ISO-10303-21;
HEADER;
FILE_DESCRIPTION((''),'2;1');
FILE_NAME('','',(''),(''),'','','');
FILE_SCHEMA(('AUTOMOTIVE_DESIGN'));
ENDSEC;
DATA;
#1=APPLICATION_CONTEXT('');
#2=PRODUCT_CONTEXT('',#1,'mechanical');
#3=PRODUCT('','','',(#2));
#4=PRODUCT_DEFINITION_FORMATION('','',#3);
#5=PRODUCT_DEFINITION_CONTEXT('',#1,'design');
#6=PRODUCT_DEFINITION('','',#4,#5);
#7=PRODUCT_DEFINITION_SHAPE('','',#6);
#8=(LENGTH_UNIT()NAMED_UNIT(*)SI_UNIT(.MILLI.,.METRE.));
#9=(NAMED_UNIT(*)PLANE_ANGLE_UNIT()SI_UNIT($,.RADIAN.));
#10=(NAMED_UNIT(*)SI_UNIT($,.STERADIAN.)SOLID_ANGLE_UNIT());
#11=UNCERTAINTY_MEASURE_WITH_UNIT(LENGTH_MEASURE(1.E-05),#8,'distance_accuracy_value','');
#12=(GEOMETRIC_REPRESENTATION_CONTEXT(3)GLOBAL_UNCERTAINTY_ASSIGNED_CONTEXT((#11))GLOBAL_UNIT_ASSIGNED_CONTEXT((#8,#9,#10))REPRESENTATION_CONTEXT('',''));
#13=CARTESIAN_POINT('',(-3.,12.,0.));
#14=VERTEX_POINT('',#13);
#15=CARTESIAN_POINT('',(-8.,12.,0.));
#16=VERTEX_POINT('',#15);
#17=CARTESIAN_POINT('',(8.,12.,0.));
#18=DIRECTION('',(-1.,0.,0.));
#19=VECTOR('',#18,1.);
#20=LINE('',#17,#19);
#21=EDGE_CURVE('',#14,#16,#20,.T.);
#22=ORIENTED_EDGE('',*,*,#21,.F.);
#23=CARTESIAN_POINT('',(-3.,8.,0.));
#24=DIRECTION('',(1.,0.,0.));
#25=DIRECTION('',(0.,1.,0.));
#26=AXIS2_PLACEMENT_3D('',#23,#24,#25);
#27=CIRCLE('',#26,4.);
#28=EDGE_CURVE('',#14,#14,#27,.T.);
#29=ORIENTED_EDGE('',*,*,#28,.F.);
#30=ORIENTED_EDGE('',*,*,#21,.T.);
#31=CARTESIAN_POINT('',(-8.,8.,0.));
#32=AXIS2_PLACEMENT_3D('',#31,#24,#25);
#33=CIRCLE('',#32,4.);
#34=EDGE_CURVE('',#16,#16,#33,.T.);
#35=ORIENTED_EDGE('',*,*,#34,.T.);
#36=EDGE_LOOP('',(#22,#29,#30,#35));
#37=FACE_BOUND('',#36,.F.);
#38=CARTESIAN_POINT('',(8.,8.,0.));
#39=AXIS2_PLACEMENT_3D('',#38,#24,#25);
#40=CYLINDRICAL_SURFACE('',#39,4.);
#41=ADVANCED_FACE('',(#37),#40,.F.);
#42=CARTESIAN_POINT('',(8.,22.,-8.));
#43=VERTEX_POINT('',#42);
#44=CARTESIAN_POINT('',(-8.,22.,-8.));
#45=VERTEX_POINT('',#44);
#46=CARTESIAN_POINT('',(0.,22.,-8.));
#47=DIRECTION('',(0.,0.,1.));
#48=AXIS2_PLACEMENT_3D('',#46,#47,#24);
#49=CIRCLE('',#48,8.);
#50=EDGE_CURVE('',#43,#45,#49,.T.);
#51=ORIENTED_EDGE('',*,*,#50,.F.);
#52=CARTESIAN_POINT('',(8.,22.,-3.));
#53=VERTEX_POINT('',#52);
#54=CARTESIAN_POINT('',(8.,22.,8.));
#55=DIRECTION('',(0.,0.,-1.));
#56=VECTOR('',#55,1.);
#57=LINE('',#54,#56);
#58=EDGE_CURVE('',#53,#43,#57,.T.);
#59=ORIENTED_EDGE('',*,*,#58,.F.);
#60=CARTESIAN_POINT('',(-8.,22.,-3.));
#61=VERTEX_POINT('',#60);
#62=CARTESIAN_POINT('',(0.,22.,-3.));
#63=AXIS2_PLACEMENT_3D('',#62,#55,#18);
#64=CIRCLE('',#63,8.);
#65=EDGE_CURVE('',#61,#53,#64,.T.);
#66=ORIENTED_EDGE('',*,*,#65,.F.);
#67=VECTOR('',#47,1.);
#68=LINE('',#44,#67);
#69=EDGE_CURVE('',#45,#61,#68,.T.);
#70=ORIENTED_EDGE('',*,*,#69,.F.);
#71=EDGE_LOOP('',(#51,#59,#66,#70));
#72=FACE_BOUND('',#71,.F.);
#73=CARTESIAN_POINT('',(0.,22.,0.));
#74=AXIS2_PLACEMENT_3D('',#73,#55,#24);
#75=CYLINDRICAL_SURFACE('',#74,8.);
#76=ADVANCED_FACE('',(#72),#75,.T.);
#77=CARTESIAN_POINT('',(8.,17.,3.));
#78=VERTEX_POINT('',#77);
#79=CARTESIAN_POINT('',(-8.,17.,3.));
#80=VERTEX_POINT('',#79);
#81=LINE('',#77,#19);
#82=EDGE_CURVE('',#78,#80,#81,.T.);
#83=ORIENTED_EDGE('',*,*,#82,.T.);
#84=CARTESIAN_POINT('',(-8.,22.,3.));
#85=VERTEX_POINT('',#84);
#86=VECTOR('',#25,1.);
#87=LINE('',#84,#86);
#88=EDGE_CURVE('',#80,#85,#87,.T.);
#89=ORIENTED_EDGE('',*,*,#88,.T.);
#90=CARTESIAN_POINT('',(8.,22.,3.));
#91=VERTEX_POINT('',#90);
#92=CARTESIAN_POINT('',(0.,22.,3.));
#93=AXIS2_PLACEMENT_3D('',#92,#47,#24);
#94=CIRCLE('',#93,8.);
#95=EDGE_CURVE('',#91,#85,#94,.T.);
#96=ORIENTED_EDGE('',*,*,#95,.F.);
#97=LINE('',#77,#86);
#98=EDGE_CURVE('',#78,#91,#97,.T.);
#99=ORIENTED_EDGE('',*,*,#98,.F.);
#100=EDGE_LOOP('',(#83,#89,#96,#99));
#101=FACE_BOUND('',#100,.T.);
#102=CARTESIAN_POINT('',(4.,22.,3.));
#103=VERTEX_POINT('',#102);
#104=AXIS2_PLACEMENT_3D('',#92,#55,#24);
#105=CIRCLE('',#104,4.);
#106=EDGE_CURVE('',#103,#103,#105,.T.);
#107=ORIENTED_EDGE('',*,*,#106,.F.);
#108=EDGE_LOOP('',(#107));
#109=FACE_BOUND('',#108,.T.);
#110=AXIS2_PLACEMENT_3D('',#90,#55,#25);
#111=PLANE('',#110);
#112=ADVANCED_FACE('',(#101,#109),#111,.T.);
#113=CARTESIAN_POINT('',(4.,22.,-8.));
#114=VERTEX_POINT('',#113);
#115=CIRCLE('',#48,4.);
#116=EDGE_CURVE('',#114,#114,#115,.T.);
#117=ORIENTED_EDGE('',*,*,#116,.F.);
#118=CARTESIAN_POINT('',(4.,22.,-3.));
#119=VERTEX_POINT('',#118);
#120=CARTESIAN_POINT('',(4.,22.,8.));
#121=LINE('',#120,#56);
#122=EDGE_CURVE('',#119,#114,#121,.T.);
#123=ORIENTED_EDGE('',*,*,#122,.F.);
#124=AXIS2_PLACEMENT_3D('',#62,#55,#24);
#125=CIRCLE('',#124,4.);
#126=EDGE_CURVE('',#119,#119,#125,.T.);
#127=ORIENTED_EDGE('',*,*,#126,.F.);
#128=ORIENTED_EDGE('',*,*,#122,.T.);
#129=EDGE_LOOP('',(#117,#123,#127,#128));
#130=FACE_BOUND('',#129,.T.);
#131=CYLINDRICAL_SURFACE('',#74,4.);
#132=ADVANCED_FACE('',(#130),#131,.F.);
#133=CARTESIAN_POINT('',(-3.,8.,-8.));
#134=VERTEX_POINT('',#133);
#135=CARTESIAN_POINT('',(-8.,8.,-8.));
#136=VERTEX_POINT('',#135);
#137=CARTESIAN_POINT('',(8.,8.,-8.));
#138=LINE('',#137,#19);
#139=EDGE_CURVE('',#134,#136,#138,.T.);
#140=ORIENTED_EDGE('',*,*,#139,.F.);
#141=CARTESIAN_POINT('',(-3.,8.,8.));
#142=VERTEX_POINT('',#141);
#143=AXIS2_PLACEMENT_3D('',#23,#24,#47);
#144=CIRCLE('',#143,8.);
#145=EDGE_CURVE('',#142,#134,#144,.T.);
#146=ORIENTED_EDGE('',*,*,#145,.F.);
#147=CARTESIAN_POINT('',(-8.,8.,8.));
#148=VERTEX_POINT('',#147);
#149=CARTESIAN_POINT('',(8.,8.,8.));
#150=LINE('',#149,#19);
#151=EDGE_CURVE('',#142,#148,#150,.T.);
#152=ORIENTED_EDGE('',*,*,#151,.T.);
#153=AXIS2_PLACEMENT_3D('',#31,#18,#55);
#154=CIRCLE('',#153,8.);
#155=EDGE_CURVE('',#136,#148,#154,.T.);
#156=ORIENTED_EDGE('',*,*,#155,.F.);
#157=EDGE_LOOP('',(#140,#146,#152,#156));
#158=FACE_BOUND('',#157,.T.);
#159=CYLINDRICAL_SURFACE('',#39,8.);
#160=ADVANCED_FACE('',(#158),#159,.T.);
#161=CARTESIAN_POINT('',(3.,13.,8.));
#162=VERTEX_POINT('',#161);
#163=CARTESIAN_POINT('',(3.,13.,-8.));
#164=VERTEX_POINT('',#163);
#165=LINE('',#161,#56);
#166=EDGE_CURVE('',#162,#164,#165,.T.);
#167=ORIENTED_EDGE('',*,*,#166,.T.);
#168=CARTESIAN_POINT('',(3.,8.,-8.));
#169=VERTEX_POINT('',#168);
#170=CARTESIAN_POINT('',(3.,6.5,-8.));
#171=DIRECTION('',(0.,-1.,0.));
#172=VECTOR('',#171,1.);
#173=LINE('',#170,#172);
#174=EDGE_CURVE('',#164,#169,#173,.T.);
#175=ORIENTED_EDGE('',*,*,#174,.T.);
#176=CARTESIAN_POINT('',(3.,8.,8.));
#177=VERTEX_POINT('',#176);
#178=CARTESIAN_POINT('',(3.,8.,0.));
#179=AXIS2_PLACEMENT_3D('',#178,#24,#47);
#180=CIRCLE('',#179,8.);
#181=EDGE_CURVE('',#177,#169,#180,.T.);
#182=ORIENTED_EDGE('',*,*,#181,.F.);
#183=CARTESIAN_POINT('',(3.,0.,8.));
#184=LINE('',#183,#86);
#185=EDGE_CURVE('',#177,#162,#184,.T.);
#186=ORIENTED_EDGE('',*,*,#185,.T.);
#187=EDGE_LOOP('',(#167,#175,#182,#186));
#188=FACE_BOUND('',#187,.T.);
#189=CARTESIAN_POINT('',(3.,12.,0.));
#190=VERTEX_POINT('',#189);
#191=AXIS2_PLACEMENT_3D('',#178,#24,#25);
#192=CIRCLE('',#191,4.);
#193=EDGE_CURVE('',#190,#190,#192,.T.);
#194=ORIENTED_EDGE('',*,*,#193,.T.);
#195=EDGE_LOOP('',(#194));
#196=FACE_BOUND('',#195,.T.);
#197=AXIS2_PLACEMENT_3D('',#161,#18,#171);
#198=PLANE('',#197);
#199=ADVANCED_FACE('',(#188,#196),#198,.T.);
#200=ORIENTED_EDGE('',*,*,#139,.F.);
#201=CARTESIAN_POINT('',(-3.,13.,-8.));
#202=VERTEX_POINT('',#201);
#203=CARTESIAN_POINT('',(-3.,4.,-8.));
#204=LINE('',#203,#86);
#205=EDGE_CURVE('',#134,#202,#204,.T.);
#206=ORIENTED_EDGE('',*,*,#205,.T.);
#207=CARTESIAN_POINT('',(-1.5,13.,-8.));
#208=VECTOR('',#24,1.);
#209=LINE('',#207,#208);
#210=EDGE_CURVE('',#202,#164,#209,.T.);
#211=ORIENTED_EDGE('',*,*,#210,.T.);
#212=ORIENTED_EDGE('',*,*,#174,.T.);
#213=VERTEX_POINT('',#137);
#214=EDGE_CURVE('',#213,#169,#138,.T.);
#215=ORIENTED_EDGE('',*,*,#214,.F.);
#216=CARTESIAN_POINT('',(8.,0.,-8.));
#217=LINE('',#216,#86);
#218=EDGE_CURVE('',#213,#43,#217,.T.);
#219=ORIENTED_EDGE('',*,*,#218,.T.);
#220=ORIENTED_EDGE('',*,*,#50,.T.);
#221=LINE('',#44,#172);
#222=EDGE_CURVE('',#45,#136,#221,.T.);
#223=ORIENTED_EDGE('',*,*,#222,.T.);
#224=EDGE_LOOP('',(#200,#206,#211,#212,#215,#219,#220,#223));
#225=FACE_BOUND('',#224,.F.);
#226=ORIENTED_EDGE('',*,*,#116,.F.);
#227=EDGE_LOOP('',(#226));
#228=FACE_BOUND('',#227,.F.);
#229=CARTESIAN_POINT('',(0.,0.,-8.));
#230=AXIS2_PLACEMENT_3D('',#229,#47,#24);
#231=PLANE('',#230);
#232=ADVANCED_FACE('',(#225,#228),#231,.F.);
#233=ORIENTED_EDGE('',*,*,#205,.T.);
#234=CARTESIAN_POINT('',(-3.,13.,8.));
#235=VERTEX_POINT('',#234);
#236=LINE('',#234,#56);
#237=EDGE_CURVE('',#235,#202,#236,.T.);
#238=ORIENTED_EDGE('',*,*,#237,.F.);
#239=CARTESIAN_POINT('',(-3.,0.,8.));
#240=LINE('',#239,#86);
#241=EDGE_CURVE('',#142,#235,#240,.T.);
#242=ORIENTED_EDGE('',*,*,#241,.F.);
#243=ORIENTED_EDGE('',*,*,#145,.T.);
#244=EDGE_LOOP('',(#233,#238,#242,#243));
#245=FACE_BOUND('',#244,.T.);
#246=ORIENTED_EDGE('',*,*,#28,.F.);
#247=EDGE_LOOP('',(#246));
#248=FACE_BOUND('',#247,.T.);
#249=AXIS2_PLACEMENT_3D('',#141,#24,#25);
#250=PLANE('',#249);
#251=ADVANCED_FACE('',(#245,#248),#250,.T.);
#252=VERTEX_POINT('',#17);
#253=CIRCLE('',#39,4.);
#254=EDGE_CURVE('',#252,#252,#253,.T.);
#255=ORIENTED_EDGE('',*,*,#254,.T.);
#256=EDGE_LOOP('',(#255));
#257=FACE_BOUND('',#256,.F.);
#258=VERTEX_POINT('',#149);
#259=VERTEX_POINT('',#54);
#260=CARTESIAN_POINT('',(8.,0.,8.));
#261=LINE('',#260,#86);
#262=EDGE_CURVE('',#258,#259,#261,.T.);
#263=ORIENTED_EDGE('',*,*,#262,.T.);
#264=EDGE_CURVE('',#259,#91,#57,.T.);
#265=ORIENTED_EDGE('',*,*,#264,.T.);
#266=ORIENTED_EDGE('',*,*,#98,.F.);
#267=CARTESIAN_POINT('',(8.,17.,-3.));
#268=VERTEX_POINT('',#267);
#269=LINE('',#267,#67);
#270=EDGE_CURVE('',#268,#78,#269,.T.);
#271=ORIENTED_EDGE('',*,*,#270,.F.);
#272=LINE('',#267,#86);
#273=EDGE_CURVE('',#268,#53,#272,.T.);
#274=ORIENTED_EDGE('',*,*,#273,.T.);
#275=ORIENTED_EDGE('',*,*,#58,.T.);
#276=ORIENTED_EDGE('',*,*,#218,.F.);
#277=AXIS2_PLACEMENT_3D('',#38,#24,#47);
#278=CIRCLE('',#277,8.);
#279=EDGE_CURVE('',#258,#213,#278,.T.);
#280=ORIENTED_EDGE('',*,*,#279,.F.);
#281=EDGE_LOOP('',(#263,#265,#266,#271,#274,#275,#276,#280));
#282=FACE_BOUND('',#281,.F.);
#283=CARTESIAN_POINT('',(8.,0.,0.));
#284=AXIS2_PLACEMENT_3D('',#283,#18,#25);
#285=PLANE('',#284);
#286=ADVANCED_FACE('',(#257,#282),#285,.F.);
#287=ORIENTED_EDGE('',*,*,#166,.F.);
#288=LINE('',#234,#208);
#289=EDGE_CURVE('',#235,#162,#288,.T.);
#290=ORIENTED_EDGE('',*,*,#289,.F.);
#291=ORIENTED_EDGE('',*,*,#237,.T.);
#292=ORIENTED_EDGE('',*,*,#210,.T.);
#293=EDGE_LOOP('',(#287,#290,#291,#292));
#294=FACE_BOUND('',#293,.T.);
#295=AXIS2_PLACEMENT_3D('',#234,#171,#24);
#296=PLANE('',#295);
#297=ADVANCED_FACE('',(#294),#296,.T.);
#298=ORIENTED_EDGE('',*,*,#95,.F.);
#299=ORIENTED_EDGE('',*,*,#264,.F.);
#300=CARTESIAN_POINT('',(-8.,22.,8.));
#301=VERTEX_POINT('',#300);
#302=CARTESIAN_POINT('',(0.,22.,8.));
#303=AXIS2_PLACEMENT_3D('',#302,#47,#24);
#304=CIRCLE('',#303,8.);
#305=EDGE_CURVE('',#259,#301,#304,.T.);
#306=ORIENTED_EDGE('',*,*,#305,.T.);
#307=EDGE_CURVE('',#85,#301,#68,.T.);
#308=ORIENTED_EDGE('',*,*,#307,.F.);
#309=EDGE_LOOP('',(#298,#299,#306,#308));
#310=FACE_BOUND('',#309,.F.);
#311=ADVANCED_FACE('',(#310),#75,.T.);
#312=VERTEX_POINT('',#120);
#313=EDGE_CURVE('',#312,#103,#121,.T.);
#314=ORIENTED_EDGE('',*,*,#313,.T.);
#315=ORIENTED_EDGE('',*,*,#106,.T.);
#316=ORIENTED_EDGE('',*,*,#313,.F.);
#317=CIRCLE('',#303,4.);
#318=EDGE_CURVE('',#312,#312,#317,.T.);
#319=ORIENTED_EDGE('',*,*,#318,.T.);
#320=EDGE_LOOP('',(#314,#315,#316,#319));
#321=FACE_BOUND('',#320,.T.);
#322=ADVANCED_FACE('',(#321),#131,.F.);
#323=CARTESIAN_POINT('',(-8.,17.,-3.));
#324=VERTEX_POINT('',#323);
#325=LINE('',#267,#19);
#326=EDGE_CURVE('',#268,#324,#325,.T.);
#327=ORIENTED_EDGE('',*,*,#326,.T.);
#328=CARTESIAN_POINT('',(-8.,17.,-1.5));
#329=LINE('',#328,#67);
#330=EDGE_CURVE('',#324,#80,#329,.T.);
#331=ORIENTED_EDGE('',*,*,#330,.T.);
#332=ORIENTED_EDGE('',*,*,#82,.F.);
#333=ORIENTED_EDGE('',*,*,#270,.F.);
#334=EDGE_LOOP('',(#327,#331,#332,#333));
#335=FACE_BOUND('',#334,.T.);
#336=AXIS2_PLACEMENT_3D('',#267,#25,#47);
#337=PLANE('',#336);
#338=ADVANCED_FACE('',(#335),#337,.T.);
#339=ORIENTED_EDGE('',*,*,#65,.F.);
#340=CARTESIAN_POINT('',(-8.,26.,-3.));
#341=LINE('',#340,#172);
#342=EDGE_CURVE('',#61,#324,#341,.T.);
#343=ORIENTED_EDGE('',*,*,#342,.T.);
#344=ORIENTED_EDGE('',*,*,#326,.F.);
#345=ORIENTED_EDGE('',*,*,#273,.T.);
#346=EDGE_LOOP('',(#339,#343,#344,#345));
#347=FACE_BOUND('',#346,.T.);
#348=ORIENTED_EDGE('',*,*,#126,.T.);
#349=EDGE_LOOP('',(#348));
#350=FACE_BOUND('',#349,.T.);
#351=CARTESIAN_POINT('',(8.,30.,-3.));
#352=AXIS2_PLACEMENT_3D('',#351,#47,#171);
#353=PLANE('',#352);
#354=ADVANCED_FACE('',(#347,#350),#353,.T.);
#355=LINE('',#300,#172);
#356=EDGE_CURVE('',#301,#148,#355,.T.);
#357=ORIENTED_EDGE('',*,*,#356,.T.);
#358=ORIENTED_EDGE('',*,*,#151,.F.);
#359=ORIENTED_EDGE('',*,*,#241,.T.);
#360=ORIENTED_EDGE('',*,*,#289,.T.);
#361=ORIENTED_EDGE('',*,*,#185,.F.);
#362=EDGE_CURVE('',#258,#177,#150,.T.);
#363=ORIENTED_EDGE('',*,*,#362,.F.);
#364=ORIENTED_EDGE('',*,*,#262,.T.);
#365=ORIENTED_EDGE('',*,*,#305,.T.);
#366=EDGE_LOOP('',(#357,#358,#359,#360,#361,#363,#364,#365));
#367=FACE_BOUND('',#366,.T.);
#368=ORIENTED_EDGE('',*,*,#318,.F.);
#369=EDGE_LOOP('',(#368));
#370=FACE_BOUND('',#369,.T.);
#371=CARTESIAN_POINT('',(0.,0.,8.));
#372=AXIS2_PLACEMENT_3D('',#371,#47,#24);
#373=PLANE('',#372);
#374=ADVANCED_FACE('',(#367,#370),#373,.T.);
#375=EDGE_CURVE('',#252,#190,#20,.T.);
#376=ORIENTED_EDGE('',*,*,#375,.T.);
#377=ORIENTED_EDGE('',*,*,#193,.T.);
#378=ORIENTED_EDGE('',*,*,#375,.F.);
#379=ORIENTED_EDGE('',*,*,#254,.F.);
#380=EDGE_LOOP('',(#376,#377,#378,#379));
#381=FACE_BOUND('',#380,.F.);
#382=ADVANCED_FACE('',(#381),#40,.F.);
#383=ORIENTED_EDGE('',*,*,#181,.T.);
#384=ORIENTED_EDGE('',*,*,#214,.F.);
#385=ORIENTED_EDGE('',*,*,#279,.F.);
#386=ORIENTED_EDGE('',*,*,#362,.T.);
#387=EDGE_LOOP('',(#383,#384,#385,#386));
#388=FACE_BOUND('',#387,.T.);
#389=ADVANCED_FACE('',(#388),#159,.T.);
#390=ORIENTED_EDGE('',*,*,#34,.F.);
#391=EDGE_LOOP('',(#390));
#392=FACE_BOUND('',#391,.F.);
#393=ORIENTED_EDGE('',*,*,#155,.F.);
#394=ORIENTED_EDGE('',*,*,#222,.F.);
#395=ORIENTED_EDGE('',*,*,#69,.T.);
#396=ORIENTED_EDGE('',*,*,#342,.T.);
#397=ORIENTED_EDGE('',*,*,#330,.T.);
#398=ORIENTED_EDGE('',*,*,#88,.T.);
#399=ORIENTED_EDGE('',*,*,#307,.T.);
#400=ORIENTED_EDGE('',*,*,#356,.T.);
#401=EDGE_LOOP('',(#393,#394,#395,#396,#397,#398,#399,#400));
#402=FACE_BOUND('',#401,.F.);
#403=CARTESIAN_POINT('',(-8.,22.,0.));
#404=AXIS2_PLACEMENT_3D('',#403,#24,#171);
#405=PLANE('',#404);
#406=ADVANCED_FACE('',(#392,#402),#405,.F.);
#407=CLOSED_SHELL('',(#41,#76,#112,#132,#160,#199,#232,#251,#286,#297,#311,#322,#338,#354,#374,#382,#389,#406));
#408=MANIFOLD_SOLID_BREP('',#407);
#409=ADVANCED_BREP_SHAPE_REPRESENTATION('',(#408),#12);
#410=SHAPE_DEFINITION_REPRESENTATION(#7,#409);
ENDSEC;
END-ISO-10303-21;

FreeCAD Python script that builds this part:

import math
import FreeCAD as App
import Part
import Sketcher

V = App.Vector
Q = App.Units.Quantity

doc = App.newDocument("Part")
body = doc.addObject("PartDesign::Body", "Body")

# Sketch on XY plane
sketch1 = body.newObject("Sketcher::SketchObject", "Sketch")
sketch1.AttachmentSupport = (doc.getObject("XY_Plane"), [""])
sketch1.MapMode = "FlatFace"
sketch1.addGeometry(Part.ArcOfCircle(Part.Circle(V(0, 22, 0), V(0, 0, 1), 8), math.radians(0), math.radians(180)), False)
sketch1.addGeometry(Part.LineSegment(V(-8, 22, 0), V(-8, 0, 0)), False)
sketch1.addGeometry(Part.LineSegment(V(-8, 0, 0), V(8, 0, 0)), False)
sketch1.addGeometry(Part.LineSegment(V(8, 0, 0), V(8, 22, 0)), False)
sketch1.addGeometry(Part.Circle(V(0, 22, 0), V(0, 0, 1), 4), False)
sketch1.addConstraint(Sketcher.Constraint("Tangent", 0, 2, 1, 1))
sketch1.addConstraint(Sketcher.Constraint("Coincident", 1, 2, 2, 1))
sketch1.addConstraint(Sketcher.Constraint("Coincident", 2, 2, 3, 1))
sketch1.addConstraint(Sketcher.Constraint("Tangent", 3, 2, 0, 1))
sketch1.addConstraint(Sketcher.Constraint("Vertical", 1))
sketch1.addConstraint(Sketcher.Constraint("Horizontal", 2))
sketch1.addConstraint(Sketcher.Constraint("Vertical", 3))
sketch1.addConstraint(Sketcher.Constraint("Coincident", 4, 3, 0, 3))
sketch1.addConstraint(Sketcher.Constraint("Symmetric", 1, 2, 2, 2, -1, 1))
sketch1.addConstraint(Sketcher.Constraint("Diameter", 4, Q("8 mm")))
sketch1.addConstraint(Sketcher.Constraint("Radius", 0, Q("8 mm")))
sketch1.addConstraint(Sketcher.Constraint("DistanceY", 1, 2, 1, 1, Q("22 mm")))
pad1 = body.newObject("PartDesign::Pad", "Pad")
pad1.Profile = sketch1
pad1.Length = 16
pad1.Midplane = True

# Sketch on YZ plane
sketch2 = body.newObject("Sketcher::SketchObject", "Sketch001")
sketch2.AttachmentSupport = (doc.getObject("YZ_Plane"), [""])
sketch2.MapMode = "FlatFace"
sketch2.AttachmentOffset = App.Placement(V(0, 0, 8), App.Rotation())
sketch2.addGeometry(Part.LineSegment(V(0, -8, 0), V(8, -8, 0)), False)
sketch2.addGeometry(Part.ArcOfCircle(Part.Circle(V(8, 0, 0), V(0, 0, 1), 8), math.radians(180), math.radians(270)), False)
sketch2.addGeometry(Part.LineSegment(V(0, 0, 0), V(0, -8, 0)), False)
sketch2.addGeometry(Part.ArcOfCircle(Part.Circle(V(8, 0, 0), V(0, 0, 1), 8), math.radians(90), math.radians(180)), False)
sketch2.addGeometry(Part.LineSegment(V(8, 8, 0), V(0, 8, 0)), False)
sketch2.addGeometry(Part.LineSegment(V(0, 8, 0), V(0, 0, 0)), False)
sketch2.addGeometry(Part.Circle(V(8, 0, 0), V(0, 0, 1), 4), False)
sketch2.addConstraint(Sketcher.Constraint("Tangent", 0, 2, 1, 2))
sketch2.addConstraint(Sketcher.Constraint("Tangent", 1, 1, 2, 1))
sketch2.addConstraint(Sketcher.Constraint("Coincident", 2, 2, 0, 1))
sketch2.addConstraint(Sketcher.Constraint("Tangent", 3, 1, 4, 1))
sketch2.addConstraint(Sketcher.Constraint("Coincident", 4, 2, 5, 1))
sketch2.addConstraint(Sketcher.Constraint("Tangent", 5, 2, 3, 2))
sketch2.addConstraint(Sketcher.Constraint("Horizontal", 0))
sketch2.addConstraint(Sketcher.Constraint("Vertical", 2))
sketch2.addConstraint(Sketcher.Constraint("Horizontal", 4))
sketch2.addConstraint(Sketcher.Constraint("Vertical", 5))
sketch2.addConstraint(Sketcher.Constraint("Coincident", 1, 1, -1, 1))
sketch2.addConstraint(Sketcher.Constraint("Coincident", 5, 2, -1, 1))
sketch2.addConstraint(Sketcher.Constraint("Coincident", 6, 3, 1, 3))
sketch2.addConstraint(Sketcher.Constraint("Equal", 1, 3))
sketch2.addConstraint(Sketcher.Constraint("Diameter", 6, Q("8 mm")))
sketch2.addConstraint(Sketcher.Constraint("Radius", 1, Q("8 mm")))
pocket1 = body.newObject("PartDesign::Pocket", "Pocket")
pocket1.Profile = sketch2
pocket1.Length = 52

# Sketch on YZ plane
sketch3 = body.newObject("Sketcher::SketchObject", "Sketch002")
sketch3.AttachmentSupport = (doc.getObject("YZ_Plane"), [""])
sketch3.MapMode = "FlatFace"
sketch3.AttachmentOffset = App.Placement(V(0, 0, 8), App.Rotation())
sketch3.addGeometry(Part.LineSegment(V(30, 3, 0), V(17, 3, 0)), False)
sketch3.addGeometry(Part.LineSegment(V(17, 3, 0), V(17, -3, 0)), False)
sketch3.addGeometry(Part.LineSegment(V(17, -3, 0), V(30, -3, 0)), False)
sketch3.addGeometry(Part.LineSegment(V(30, -3, 0), V(30, 3, 0)), False)
sketch3.addConstraint(Sketcher.Constraint("Coincident", 0, 2, 1, 1))
sketch3.addConstraint(Sketcher.Constraint("Coincident", 1, 2, 2, 1))
sketch3.addConstraint(Sketcher.Constraint("Coincident", 2, 2, 3, 1))
sketch3.addConstraint(Sketcher.Constraint("Coincident", 3, 2, 0, 1))
sketch3.addConstraint(Sketcher.Constraint("Horizontal", 0))
sketch3.addConstraint(Sketcher.Constraint("Vertical", 1))
sketch3.addConstraint(Sketcher.Constraint("Horizontal", 2))
sketch3.addConstraint(Sketcher.Constraint("Vertical", 3))
sketch3.addConstraint(Sketcher.Constraint("DistanceX", 0, 2, 0, 1, Q("13 mm")))
sketch3.addConstraint(Sketcher.Constraint("DistanceY", 1, 2, 1, 1, Q("6 mm")))
sketch3.addConstraint(Sketcher.Constraint("DistanceX", -1, 1, 0, 2, Q("17 mm")))
sketch3.addConstraint(Sketcher.Constraint("DistanceY", -1, 1, 0, 2, Q("3 mm")))
pocket2 = body.newObject("PartDesign::Pocket", "Pocket001")
pocket2.Profile = sketch3
pocket2.Length = 21

# Sketch on XY plane
sketch4 = body.newObject("Sketcher::SketchObject", "Sketch003")
sketch4.AttachmentSupport = (doc.getObject("XY_Plane"), [""])
sketch4.MapMode = "FlatFace"
sketch4.AttachmentOffset = App.Placement(V(0, 0, 8), App.Rotation())
sketch4.addGeometry(Part.LineSegment(V(-3, 13, 0), V(-3, 0, 0)), False)
sketch4.addGeometry(Part.LineSegment(V(-3, 0, 0), V(3, 0, 0)), False)
sketch4.addGeometry(Part.LineSegment(V(3, 0, 0), V(3, 13, 0)), False)
sketch4.addGeometry(Part.LineSegment(V(3, 13, 0), V(-3, 13, 0)), False)
sketch4.addConstraint(Sketcher.Constraint("Coincident", 0, 2, 1, 1))
sketch4.addConstraint(Sketcher.Constraint("Coincident", 1, 2, 2, 1))
sketch4.addConstraint(Sketcher.Constraint("Coincident", 2, 2, 3, 1))
sketch4.addConstraint(Sketcher.Constraint("Coincident", 3, 2, 0, 1))
sketch4.addConstraint(Sketcher.Constraint("Vertical", 0))
sketch4.addConstraint(Sketcher.Constraint("Horizontal", 1))
sketch4.addConstraint(Sketcher.Constraint("Vertical", 2))
sketch4.addConstraint(Sketcher.Constraint("Horizontal", 3))
sketch4.addConstraint(Sketcher.Constraint("Symmetric", 0, 2, 1, 2, -1, 1))
sketch4.addConstraint(Sketcher.Constraint("DistanceX", 1, 1, 1, 2, Q("6 mm")))
sketch4.addConstraint(Sketcher.Constraint("DistanceY", 0, 2, 0, 1, Q("13 mm")))
pocket3 = body.newObject("PartDesign::Pocket", "Pocket002")
pocket3.Profile = sketch4
pocket3.Length = 68

doc.recompute()
